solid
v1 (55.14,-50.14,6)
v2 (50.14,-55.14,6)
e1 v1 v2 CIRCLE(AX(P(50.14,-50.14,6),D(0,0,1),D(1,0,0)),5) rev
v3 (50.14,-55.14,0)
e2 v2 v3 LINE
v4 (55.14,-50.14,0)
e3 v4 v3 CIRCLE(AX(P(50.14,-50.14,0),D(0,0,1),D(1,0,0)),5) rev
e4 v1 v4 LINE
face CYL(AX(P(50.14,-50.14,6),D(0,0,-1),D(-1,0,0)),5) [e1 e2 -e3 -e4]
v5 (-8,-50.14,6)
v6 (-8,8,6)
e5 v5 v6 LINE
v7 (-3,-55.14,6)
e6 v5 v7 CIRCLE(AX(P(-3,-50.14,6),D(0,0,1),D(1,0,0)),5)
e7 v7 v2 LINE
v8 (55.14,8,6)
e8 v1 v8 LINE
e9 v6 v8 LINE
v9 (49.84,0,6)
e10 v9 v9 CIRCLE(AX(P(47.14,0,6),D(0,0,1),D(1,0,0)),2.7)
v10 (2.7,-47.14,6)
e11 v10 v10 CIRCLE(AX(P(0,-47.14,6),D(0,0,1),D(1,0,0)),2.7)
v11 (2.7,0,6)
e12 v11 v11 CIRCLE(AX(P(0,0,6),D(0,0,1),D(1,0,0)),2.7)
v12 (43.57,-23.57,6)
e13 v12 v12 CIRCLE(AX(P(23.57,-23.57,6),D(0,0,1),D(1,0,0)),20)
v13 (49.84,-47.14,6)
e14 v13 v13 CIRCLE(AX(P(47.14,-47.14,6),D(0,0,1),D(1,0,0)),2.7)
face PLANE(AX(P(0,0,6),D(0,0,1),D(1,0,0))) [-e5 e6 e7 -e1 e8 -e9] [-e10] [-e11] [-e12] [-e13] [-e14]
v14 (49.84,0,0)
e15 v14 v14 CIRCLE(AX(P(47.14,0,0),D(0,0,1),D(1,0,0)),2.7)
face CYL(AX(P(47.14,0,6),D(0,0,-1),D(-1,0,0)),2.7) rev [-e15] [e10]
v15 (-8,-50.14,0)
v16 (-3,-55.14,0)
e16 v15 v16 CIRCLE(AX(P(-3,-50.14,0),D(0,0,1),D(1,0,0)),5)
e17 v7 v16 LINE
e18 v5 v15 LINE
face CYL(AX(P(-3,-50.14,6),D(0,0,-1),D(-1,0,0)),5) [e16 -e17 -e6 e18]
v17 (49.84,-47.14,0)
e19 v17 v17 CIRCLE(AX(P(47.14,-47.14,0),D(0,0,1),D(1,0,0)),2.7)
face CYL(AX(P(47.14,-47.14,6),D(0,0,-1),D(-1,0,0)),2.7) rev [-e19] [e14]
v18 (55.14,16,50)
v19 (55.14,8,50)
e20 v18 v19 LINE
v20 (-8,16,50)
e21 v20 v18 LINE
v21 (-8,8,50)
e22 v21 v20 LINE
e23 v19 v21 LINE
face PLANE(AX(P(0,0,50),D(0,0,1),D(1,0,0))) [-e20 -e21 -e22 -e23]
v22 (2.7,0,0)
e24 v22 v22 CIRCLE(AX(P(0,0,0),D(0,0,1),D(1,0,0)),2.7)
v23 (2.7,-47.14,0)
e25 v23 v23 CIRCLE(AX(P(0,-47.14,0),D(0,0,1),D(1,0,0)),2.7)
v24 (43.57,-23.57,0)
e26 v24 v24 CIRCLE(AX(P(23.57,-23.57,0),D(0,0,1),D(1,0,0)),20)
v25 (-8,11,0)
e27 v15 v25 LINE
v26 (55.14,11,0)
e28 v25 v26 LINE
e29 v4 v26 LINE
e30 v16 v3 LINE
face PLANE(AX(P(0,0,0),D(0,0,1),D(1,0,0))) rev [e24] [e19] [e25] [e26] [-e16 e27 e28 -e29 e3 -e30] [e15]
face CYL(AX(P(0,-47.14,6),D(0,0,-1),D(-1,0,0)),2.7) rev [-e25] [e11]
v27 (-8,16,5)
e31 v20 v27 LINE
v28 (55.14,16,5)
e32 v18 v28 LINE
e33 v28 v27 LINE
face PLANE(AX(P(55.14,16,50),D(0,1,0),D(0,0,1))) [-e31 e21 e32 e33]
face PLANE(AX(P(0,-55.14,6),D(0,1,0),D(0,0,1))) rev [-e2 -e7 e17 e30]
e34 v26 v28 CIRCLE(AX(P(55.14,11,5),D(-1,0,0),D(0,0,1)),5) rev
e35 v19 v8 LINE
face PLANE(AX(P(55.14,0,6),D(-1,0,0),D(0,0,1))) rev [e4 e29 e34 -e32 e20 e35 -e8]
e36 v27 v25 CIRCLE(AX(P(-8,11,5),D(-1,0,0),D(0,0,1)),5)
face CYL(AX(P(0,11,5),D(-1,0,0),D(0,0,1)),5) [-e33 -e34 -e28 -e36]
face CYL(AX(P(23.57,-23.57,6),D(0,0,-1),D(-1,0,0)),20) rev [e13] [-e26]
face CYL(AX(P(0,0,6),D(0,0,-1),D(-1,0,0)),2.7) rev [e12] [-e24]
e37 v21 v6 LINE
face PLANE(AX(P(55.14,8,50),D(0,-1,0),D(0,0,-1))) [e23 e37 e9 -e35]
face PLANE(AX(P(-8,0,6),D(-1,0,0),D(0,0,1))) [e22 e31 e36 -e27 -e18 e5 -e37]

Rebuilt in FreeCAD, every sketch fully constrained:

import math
import FreeCAD as App
import Part
import Sketcher
Q = App.Units.Quantity


def edges_at(feature, points):
    """Names of the edges that pass closest to the given points."""
    edges = feature.Shape.Edges
    near = lambda p: min(range(len(edges)), key=lambda i: edges[i].distToShape(Part.Vertex(*p))[0])
    return sorted({f"Edge{near(p) + 1}" for p in points})


def add_polygon(sketch, points):
    """Adds a closed chain of lines whose ends are joined by coincident constraints."""
    first, n = sketch.GeometryCount, len(points)
    for a, b in zip(points, points[1:] + points[:1]):
        sketch.addGeometry(Part.LineSegment(App.Vector(*a, 0), App.Vector(*b, 0)), False)
    for i in range(n):
        sketch.addConstraint(Sketcher.Constraint("Coincident", first + i, 2, first + (i + 1) % n, 1))

doc = App.newDocument("Part")
body = doc.addObject("PartDesign::Body", "Body")

sketch1 = body.newObject("Sketcher::SketchObject", "Sketch")
sketch1.AttachmentSupport = (doc.getObject("XY_Plane"), [""])
sketch1.MapMode = "FlatFace"
sketch1.addGeometry([
    Part.LineSegment(App.Vector(-8, 8, 0), App.Vector(-8, -50.1, 0)),
    Part.ArcOfCircle(Part.Circle(App.Vector(-3, -50.1, 0), App.Vector(0, 0, 1), 5), math.radians(180), math.radians(270)),
    Part.LineSegment(App.Vector(-3, -55.1, 0), App.Vector(50.1, -55.1, 0)),
    Part.ArcOfCircle(Part.Circle(App.Vector(50.1, -50.1, 0), App.Vector(0, 0, 1), 5), math.radians(-90), math.radians(0)),
    Part.LineSegment(App.Vector(55.1, -50.1, 0), App.Vector(55.1, 8, 0)),
    Part.LineSegment(App.Vector(55.1, 8, 0), App.Vector(-8, 8, 0)),
    Part.Circle(App.Vector(47.1, -47.1, 0), App.Vector(0, 0, 1), 2.7),
    Part.Circle(App.Vector(0, -47.1, 0), App.Vector(0, 0, 1), 2.7),
    Part.Circle(App.Vector(47.1, 0, 0), App.Vector(0, 0, 1), 2.7),
    Part.Circle(App.Vector(23.6, -23.6, 0), App.Vector(0, 0, 1), 20),
    Part.Circle(App.Vector(0, 0, 0), App.Vector(0, 0, 1), 2.7),
], False)
sketch1.addConstraint([
    Sketcher.Constraint("Tangent", 0, 2, 1, 1),
    Sketcher.Constraint("Tangent", 1, 2, 2, 1),
    Sketcher.Constraint("Tangent", 2, 2, 3, 1),
    Sketcher.Constraint("Tangent", 3, 2, 4, 1),
    Sketcher.Constraint("Coincident", 4, 2, 5, 1),
    Sketcher.Constraint("Coincident", 5, 2, 0, 1),
    Sketcher.Constraint("Vertical", 0),
    Sketcher.Constraint("Horizontal", 2),
    Sketcher.Constraint("Vertical", 4),
    Sketcher.Constraint("Horizontal", 5),
    Sketcher.Constraint("Coincident", 10, 3, -1, 1),
    Sketcher.Constraint("Equal", 1, 3),
    Sketcher.Constraint("Equal", 6, 7),
    Sketcher.Constraint("Equal", 7, 8),
    Sketcher.Constraint("Equal", 8, 10),
    Sketcher.Constraint("PointOnObject", 7, 3, -2),
    Sketcher.Constraint("PointOnObject", 8, 3, -1),
    Sketcher.Constraint("Horizontal", 6, 3, 7, 3),
    Sketcher.Constraint("Vertical", 6, 3, 8, 3),
    Sketcher.Constraint("Diameter", 9, Q("40 mm")),
    Sketcher.Constraint("Radius", 1, Q("5 mm")),
    Sketcher.Constraint("Diameter", 6, Q("5.4 mm")),
    Sketcher.Constraint("DistanceX", 1, 3, -1, 1, Q("3 mm")),
    Sketcher.Constraint("DistanceY", -1, 1, 4, 2, Q("8 mm")),
    Sketcher.Constraint("DistanceX", 6, 3, 3, 3, Q("3 mm")),
    Sketcher.Constraint("DistanceY", 3, 3, 6, 3, Q("3 mm")),
    Sketcher.Constraint("DistanceX", 2, 1, 2, 2, Q("53.14 mm")),
    Sketcher.Constraint("DistanceY", 0, 2, 0, 1, Q("58.14 mm")),
    Sketcher.Constraint("DistanceX", -1, 1, 9, 3, Q("23.57 mm")),
    Sketcher.Constraint("DistanceY", 9, 3, -1, 1, Q("23.57 mm")),
])
pad1 = body.newObject("PartDesign::Pad", "Pad")
pad1.Profile = sketch1
pad1.Length = 6

sketch2 = body.newObject("Sketcher::SketchObject", "Sketch001")
sketch2.AttachmentSupport = (doc.getObject("XY_Plane"), [""])
sketch2.MapMode = "FlatFace"
add_polygon(sketch2, [(55, 16), (55, 8), (-8, 8), (-8, 16)])
sketch2.addConstraint([
    Sketcher.Constraint("Vertical", 0),
    Sketcher.Constraint("Horizontal", 1),
    Sketcher.Constraint("Vertical", 2),
    Sketcher.Constraint("Horizontal", 3),
    Sketcher.Constraint("DistanceY", 0, 2, 0, 1, Q("8 mm")),
    Sketcher.Constraint("DistanceY", -1, 1, 0, 2, Q("8 mm")),
    Sketcher.Constraint("DistanceX", 1, 2, -1, 1, Q("8 mm")),
    Sketcher.Constraint("DistanceX", 1, 2, 1, 1, Q("63.14 mm")),
])
pad2 = body.newObject("PartDesign::Pad", "Pad001")
pad2.Profile = sketch2
pad2.Length = 50
doc.recompute()

fillet = body.newObject("PartDesign::Fillet", "Fillet")
fillet.Base = (pad2, edges_at(pad2, [(23.57, 16, 0)]))
fillet.Radius = 5

doc.recompute()
